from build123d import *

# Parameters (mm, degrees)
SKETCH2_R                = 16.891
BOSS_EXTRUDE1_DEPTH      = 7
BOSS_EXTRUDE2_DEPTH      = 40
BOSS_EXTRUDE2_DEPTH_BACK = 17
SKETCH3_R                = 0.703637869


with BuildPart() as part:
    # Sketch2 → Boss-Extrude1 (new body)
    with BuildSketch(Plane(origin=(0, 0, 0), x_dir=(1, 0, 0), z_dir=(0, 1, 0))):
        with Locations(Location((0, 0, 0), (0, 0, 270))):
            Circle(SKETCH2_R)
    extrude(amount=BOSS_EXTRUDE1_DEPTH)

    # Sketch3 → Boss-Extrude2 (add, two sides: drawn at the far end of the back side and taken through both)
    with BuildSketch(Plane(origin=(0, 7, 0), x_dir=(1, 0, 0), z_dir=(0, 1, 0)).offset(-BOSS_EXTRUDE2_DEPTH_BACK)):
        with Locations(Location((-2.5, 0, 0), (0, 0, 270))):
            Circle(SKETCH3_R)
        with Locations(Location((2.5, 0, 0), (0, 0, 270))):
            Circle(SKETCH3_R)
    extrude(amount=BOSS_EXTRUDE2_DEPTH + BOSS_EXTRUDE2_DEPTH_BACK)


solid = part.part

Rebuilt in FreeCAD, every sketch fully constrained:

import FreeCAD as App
import Part
import Sketcher

doc = App.newDocument("Part")
body = doc.addObject("PartDesign::Body", "Body")

# Sketch on XZ plane
sketch1 = body.newObject("Sketcher::SketchObject", "Sketch")
sketch1.AttachmentSupport = (doc.getObject("XZ_Plane"), [""])
sketch1.MapMode = "FlatFace"
sketch1.addGeometry(Part.Circle(App.Vector(0, 0, 0), App.Vector(0, 0, 1), 16.891), False)
sketch1.addConstraint([
    Sketcher.Constraint("Coincident", 0, 3, -1, 1),
    Sketcher.Constraint("Diameter", 0, 33.782),
])
pad1 = body.newObject("PartDesign::Pad", "Pad")
pad1.Profile = sketch1
pad1.Length = 7
pad1.Reversed = True

# Sketch on XZ plane
sketch2 = body.newObject("Sketcher::SketchObject", "Sketch001")
sketch2.AttachmentSupport = (doc.getObject("XZ_Plane"), [""])
sketch2.MapMode = "FlatFace"
sketch2.AttachmentOffset = App.Placement(App.Vector(0, 0, -7), App.Rotation())
sketch2.addGeometry([
    Part.Circle(App.Vector(-2.5, 0, 0), App.Vector(0, 0, 1), 0.703638),
    Part.Circle(App.Vector(2.5, 0, 0), App.Vector(0, 0, 1), 0.703638),
], False)
sketch2.addConstraint([
    Sketcher.Constraint("Equal", 0, 1),
    Sketcher.Constraint("Symmetric", 0, 3, 1, 3, -1, 1),
    Sketcher.Constraint("PointOnObject", 0, 3, -1),
    Sketcher.Constraint("DistanceX", 0, 3, 1, 3, 5.0),
    Sketcher.Constraint("Diameter", 0, 1.407276),
])
pad2 = body.newObject("PartDesign::Pad", "Pad001")
pad2.Profile = sketch2
pad2.Type = "TwoLengths"
pad2.Length = 40
pad2.Length2 = 17
pad2.Reversed = True

doc.recompute()
